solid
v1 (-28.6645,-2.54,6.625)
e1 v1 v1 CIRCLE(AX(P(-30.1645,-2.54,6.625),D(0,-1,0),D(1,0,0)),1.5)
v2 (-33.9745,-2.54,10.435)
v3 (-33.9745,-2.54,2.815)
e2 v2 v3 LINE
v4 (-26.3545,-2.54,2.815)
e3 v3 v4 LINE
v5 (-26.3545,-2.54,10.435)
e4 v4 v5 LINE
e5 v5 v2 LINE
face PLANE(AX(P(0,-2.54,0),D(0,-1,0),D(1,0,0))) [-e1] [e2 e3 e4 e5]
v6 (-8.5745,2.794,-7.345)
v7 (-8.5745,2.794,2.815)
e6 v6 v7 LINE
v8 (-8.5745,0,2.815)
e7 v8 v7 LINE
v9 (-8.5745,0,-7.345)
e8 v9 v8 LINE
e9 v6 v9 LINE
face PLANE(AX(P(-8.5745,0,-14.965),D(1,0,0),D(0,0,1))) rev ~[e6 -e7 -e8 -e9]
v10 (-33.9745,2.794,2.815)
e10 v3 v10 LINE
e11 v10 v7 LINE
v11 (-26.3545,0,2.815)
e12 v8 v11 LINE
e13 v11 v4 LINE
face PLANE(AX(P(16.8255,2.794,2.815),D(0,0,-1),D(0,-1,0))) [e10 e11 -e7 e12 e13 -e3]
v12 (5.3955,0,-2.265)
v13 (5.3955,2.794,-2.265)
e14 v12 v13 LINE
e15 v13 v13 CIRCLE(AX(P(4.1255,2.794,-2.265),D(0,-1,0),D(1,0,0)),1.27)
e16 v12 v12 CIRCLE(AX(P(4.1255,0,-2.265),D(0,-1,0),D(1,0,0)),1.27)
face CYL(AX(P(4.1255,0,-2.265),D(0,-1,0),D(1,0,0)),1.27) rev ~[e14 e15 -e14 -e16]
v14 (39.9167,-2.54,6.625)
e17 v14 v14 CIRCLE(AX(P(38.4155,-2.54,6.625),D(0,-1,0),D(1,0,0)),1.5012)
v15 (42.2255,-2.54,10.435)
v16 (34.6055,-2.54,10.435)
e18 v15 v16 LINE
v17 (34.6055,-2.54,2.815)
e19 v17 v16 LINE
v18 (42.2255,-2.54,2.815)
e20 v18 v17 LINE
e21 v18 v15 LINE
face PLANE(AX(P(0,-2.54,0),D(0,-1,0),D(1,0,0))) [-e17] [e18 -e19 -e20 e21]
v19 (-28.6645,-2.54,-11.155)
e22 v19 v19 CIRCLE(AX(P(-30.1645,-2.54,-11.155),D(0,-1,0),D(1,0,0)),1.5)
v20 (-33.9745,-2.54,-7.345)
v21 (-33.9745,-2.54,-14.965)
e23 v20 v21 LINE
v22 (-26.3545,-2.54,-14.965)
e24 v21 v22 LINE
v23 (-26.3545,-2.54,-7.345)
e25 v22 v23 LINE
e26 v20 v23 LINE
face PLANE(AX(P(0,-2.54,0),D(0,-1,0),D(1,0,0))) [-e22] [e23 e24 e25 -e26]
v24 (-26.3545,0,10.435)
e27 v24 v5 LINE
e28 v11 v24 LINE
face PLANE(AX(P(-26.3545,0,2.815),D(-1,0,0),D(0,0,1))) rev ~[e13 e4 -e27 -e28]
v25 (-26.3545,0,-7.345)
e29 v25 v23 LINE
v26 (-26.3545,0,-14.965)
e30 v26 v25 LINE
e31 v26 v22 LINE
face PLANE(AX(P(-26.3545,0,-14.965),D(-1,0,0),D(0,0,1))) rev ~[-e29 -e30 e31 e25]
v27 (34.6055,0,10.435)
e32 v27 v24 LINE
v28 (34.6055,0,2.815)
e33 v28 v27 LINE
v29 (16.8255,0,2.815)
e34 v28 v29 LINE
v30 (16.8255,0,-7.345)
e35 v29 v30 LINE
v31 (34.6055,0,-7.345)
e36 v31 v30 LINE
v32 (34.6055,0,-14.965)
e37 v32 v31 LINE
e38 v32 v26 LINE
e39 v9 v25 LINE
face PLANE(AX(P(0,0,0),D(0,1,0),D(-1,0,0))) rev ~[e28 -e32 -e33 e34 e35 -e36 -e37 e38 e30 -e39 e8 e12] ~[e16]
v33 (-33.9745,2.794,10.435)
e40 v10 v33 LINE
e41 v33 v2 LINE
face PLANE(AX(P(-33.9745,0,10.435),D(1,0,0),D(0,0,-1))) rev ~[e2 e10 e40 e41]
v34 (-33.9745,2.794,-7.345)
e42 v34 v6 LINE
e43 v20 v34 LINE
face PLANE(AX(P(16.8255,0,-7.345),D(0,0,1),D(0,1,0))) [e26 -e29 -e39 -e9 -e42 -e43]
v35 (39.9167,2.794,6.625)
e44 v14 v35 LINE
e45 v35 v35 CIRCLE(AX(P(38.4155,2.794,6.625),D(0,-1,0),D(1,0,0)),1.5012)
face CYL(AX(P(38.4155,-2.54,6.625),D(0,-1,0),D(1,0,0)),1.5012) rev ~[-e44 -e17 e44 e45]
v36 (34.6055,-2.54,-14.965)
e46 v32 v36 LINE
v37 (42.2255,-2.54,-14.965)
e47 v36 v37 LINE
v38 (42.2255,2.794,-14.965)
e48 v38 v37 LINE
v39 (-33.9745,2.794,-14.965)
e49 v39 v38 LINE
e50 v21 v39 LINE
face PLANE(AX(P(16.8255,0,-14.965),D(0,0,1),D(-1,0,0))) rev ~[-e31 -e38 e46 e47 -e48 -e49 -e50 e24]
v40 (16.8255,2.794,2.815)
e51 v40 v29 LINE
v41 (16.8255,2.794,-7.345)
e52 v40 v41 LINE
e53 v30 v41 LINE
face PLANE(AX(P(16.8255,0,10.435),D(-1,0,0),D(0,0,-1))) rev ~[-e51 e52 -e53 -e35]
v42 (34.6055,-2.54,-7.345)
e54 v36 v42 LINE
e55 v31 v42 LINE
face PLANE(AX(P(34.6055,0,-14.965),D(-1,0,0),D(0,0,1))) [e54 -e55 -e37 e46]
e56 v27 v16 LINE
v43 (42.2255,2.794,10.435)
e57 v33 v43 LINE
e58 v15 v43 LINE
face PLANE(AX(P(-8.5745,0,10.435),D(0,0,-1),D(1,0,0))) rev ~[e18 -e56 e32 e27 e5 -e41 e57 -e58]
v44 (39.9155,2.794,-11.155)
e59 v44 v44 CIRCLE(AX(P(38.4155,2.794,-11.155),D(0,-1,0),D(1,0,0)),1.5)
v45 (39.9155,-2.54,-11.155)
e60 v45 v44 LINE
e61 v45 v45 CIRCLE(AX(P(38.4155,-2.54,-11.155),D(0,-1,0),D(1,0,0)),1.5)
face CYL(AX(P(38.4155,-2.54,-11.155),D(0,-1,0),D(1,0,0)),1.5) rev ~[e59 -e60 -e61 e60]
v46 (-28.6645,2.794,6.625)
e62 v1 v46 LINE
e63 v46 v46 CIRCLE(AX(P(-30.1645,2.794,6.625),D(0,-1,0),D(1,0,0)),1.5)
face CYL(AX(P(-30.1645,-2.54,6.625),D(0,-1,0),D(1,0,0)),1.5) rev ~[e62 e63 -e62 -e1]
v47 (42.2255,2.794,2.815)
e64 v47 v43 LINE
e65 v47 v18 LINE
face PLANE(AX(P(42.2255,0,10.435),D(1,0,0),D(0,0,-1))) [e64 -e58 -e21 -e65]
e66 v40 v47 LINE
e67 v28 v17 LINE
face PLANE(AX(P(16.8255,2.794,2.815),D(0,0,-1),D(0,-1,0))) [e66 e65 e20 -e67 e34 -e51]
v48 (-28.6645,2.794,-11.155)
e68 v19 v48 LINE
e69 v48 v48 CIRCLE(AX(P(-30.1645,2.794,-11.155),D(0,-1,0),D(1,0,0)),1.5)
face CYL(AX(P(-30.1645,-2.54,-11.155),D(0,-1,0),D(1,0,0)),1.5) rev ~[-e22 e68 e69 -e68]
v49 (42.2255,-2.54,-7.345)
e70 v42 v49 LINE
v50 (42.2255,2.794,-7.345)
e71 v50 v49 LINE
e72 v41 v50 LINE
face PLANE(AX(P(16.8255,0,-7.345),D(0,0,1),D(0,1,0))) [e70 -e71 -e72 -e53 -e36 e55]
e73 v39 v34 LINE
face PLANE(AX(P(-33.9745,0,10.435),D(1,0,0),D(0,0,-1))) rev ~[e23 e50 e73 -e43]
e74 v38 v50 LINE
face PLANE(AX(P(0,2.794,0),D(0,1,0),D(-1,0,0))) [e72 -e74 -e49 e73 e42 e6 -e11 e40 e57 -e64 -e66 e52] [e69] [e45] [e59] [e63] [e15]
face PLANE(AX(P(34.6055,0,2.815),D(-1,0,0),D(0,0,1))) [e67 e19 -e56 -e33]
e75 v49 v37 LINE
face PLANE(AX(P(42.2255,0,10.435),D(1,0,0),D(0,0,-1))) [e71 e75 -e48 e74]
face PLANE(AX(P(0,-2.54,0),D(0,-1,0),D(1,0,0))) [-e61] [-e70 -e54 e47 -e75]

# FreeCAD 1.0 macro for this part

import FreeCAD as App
import Part
import Sketcher
Q = App.Units.Quantity


def add_polygon(sketch, points):
    """Adds a closed chain of lines whose ends are joined by coincident constraints."""
    first, n = sketch.GeometryCount, len(points)
    for a, b in zip(points, points[1:] + points[:1]):
        sketch.addGeometry(Part.LineSegment(App.Vector(*a, 0), App.Vector(*b, 0)), False)
    for i in range(n):
        sketch.addConstraint(Sketcher.Constraint("Coincident", first + i, 2, first + (i + 1) % n, 1))

doc = App.newDocument("Part")
body = doc.addObject("PartDesign::Body", "Body")

# Sketch on XZ plane
sketch1 = doc.addObject("Sketcher::SketchObject", "Sketch")
body.addObject(sketch1)
sketch1.AttachmentSupport = (doc.XZ_Plane, [""])
sketch1.MapMode = "FlatFace"
add_polygon(sketch1, [(17, -15), (-9, -15), (-9, 10), (17, 10)])  # lines 0-3
sketch1.addConstraint([
    Sketcher.Constraint("Horizontal", 0),
    Sketcher.Constraint("Vertical", 1),
    Sketcher.Constraint("Horizontal", 2),
    Sketcher.Constraint("Vertical", 3),
    Sketcher.Constraint("Equal", 2, 1),
    Sketcher.Constraint("DistanceX", 0, 2, 0, 1, Q("1 in")),
    Sketcher.Constraint("DistanceX", 0, 2, -1, 1, 8.5745),
    Sketcher.Constraint("DistanceY", 0, 2, -1, 1, 14.965),
])
pad1 = doc.addObject("PartDesign::Pad", "Pad")
body.addObject(pad1)
pad1.Profile = sketch1
pad1.Length = Q("0.11 in")
pad1.Reversed = True

# Sketch on YZ plane
sketch2 = doc.addObject("Sketcher::SketchObject", "Sketch001")
body.addObject(sketch2)
sketch2.AttachmentSupport = (doc.YZ_Plane, [""])
sketch2.MapMode = "FlatFace"
sketch2.AttachmentOffset = App.Placement(App.Vector(0, 0, 16.8255), App.Rotation())
add_polygon(sketch2, [(0, -15), (2.8, -15), (2.8, -7.3), (0, -7.3)])  # lines 0-3
add_polygon(sketch2, [(0, 2.8), (2.8, 2.8), (2.8, 10.4), (0, 10.4)])  # lines 4-7
sketch2.addConstraint([
    Sketcher.Constraint("Horizontal", 0),
    Sketcher.Constraint("Vertical", 1),
    Sketcher.Constraint("Horizontal", 2),
    Sketcher.Constraint("Vertical", 3),
    Sketcher.Constraint("Horizontal", 4),
    Sketcher.Constraint("Vertical", 5),
    Sketcher.Constraint("Horizontal", 6),
    Sketcher.Constraint("Vertical", 7),
    Sketcher.Constraint("PointOnObject", 2, 2, -2),
    Sketcher.Constraint("PointOnObject", 6, 2, -2),
    Sketcher.Constraint("Vertical", 1, 2, 4, 2),
    Sketcher.Constraint("Equal", 3, 5),
    Sketcher.Constraint("DistanceY", 1, 1, 1, 2, Q("0.3 in")),
    Sketcher.Constraint("DistanceY", 0, 2, 5, 2, Q("1 in")),
    Sketcher.Constraint("DistanceX", 0, 1, 0, 2, Q("0.11 in")),
    Sketcher.Constraint("DistanceY", 0, 2, -1, 1, 14.965),
])
pad2 = doc.addObject("PartDesign::Pad", "Pad001")
body.addObject(pad2)
pad2.Profile = sketch2
pad2.Type = "TwoLengths"
pad2.Length = Q("1 in")
pad2.Length2 = Q("2 in")

# Sketch on XZ plane
sketch3 = doc.addObject("Sketcher::SketchObject", "Sketch002")
body.addObject(sketch3)
sketch3.AttachmentSupport = (doc.XZ_Plane, [""])
sketch3.MapMode = "FlatFace"
sketch3.addGeometry(Part.Circle(App.Vector(4.1, -2.3, 0), App.Vector(0, 0, 1), 1.3), False)
sketch3.addConstraint([
    Sketcher.Constraint("Diameter", 0, Q("0.1 in")),
    Sketcher.Constraint("DistanceX", -1, 1, 0, 3, 4.1255),
    Sketcher.Constraint("DistanceY", 0, 3, -1, 1, 2.265),
])
pocket1 = doc.addObject("PartDesign::Pocket", "Pocket")
body.addObject(pocket1)
pocket1.Profile = sketch3
pocket1.Length = Q("1 in")

# Sketch on XZ plane
sketch4 = doc.addObject("Sketcher::SketchObject", "Sketch003")
body.addObject(sketch4)
sketch4.AttachmentSupport = (doc.XZ_Plane, [""])
sketch4.MapMode = "FlatFace"
add_polygon(sketch4, [(-34, -7), (-34, -15), (-26, -15), (-26, -7)])  # lines 0-3
add_polygon(sketch4, [(35, -7), (35, -15), (42, -15), (42, -7)])  # lines 4-7
add_polygon(sketch4, [(42, 3), (42, 10), (35, 10), (35, 3)])  # lines 8-11
add_polygon(sketch4, [(-26, 3), (-26, 10), (-34, 10), (-34, 3)])  # lines 12-15
sketch4.addConstraint([
    Sketcher.Constraint("Vertical", 0),
    Sketcher.Constraint("Horizontal", 1),
    Sketcher.Constraint("Vertical", 2),
    Sketcher.Constraint("Horizontal", 3),
    Sketcher.Constraint("Vertical", 4),
    Sketcher.Constraint("Horizontal", 5),
    Sketcher.Constraint("Vertical", 6),
    Sketcher.Constraint("Horizontal", 7),
    Sketcher.Constraint("Vertical", 8),
    Sketcher.Constraint("Horizontal", 9),
    Sketcher.Constraint("Vertical", 10),
    Sketcher.Constraint("Horizontal", 11),
    Sketcher.Constraint("Vertical", 12),
    Sketcher.Constraint("Horizontal", 13),
    Sketcher.Constraint("Vertical", 14),
    Sketcher.Constraint("Horizontal", 15),
    Sketcher.Constraint("Horizontal", 1, 2, 4, 2),
    Sketcher.Constraint("Horizontal", 3, 2, 6, 2),
    Sketcher.Constraint("Horizontal", 9, 2, 12, 2),
    Sketcher.Constraint("Horizontal", 11, 2, 14, 2),
    Sketcher.Constraint("Vertical", 6, 2, 8, 2),
    Sketcher.Constraint("Vertical", 7, 2, 9, 2),
    Sketcher.Constraint("Vertical", 2, 2, 12, 2),
    Sketcher.Constraint("Vertical", 3, 2, 13, 2),
    Sketcher.Constraint("Equal", 3, 5),
    Sketcher.Constraint("Equal", 15, 0),
    Sketcher.Constraint("Equal", 6, 8),
    Sketcher.Constraint("DistanceX", 1, 1, 1, 2, Q("0.3 in")),
    Sketcher.Constraint("DistanceX", 0, 2, 5, 2, Q("3 in")),
    Sketcher.Constraint("DistanceY", 5, 2, 8, 2, Q("1 in")),
    Sketcher.Constraint("DistanceX", 0, 2, -1, 1, 33.9745),
    Sketcher.Constraint("DistanceY", 0, 2, -1, 1, 14.965),
])
pad3 = doc.addObject("PartDesign::Pad", "Pad002")
body.addObject(pad3)
pad3.Profile = sketch4
pad3.Length = Q("0.1 in")

# Sketch on XZ plane
sketch5 = doc.addObject("Sketcher::SketchObject", "Sketch004")
body.addObject(sketch5)
sketch5.AttachmentSupport = (doc.XZ_Plane, [""])
sketch5.MapMode = "FlatFace"
sketch5.AttachmentOffset = App.Placement(App.Vector(0, 0, 0.1 * 25.4), App.Rotation())
sketch5.addGeometry([
    Part.Circle(App.Vector(38.4, -11.2, 0), App.Vector(0, 0, 1), 1.5),
    Part.Circle(App.Vector(38.4, 6.6, 0), App.Vector(0, 0, 1), 1.5),
    Part.Circle(App.Vector(-30.2, 6.6, 0), App.Vector(0, 0, 1), 1.5),
    Part.Circle(App.Vector(-30.2, -11.2, 0), App.Vector(0, 0, 1), 1.5),
], False)
sketch5.addConstraint([
    Sketcher.Constraint("Equal", 0, 2),
    Sketcher.Constraint("Equal", 2, 3),
    Sketcher.Constraint("Horizontal", 1, 3, 2, 3),
    Sketcher.Constraint("Horizontal", 0, 3, 3, 3),
    Sketcher.Constraint("Vertical", 0, 3, 1, 3),
    Sketcher.Constraint("Vertical", 2, 3, 3, 3),
    Sketcher.Constraint("Diameter", 0, Q("0.1181 in")),
    Sketcher.Constraint("Diameter", 1, Q("0.1182 in")),
    Sketcher.Constraint("DistanceY", 0, 3, 1, 3, Q("0.7 in")),
    Sketcher.Constraint("DistanceX", 2, 3, 1, 3, Q("2.7 in")),
    Sketcher.Constraint("DistanceX", -1, 1, 0, 3, 38.4155),
    Sketcher.Constraint("DistanceY", 0, 3, -1, 1, 11.155),
])
pocket2 = doc.addObject("PartDesign::Pocket", "Pocket001")
body.addObject(pocket2)
pocket2.Profile = sketch5
pocket2.Length = Q("3 in")

doc.recompute()
